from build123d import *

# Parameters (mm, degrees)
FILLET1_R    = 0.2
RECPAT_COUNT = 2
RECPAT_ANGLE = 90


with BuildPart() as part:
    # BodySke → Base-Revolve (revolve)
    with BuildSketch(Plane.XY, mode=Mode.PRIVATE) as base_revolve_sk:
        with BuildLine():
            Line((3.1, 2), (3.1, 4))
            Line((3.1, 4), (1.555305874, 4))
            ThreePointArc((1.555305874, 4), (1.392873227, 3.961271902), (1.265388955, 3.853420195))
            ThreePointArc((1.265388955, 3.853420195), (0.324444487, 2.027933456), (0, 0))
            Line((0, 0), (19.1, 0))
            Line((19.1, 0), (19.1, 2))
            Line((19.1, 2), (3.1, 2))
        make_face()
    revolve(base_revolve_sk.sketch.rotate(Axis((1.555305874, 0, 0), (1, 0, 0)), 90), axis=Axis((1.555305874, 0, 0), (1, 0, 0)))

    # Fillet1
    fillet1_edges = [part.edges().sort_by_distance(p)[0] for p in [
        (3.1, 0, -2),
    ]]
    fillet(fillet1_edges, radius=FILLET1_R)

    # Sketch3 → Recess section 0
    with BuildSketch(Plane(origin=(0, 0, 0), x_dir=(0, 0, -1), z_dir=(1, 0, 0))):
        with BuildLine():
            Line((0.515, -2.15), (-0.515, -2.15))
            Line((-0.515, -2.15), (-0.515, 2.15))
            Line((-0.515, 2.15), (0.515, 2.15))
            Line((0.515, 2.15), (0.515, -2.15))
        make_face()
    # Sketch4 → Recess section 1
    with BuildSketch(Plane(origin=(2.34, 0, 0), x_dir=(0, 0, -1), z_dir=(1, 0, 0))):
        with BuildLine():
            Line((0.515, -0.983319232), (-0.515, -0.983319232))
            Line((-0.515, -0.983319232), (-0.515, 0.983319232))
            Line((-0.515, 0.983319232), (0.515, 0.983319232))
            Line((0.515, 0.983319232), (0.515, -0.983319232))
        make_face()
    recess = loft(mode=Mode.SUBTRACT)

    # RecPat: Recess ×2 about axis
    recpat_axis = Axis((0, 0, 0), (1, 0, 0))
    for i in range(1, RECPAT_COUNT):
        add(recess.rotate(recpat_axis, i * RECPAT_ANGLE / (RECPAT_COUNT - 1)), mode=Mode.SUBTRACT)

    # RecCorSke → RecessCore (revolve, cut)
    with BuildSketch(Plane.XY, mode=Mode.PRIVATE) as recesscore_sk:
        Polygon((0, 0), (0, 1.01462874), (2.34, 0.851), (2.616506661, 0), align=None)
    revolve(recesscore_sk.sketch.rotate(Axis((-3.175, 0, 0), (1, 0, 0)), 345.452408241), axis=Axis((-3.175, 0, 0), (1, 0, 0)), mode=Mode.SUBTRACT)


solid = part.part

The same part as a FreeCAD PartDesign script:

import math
import FreeCAD as App
import Part
import Sketcher

V = App.Vector
Q = App.Units.Quantity


def edges_at(feature, points):
    """Names of the edges that pass closest to the given points."""
    edges = feature.Shape.Edges
    near = lambda p: min(range(len(edges)), key=lambda i: edges[i].distToShape(Part.Vertex(*p))[0])
    return sorted({f"Edge{near(p) + 1}" for p in points})

doc = App.newDocument("Part")
body = doc.addObject("PartDesign::Body", "Body")

# Sketch on XY plane
sketch1 = body.newObject("Sketcher::SketchObject", "Sketch")
sketch1.AttachmentSupport = (doc.getObject("XY_Plane"), [""])
sketch1.MapMode = "FlatFace"
sketch1.addGeometry(Part.LineSegment(V(3.1, 2, 0), V(3.1, 4, 0)), False)
sketch1.addGeometry(Part.LineSegment(V(3.1, 4, 0), V(1.555306, 4, 0)), False)
sketch1.addGeometry(Part.ArcOfCircle(Part.Circle(V(1.555306, 3.64, 0), V(0, 0, 1), 0.36), math.radians(90), math.radians(143.641633)), False)
sketch1.addGeometry(Part.ArcOfCircle(Part.Circle(V(6.5, 0, 0), V(0, 0, 1), 6.5), math.radians(143.641632), math.radians(180)), False)
sketch1.addGeometry(Part.LineSegment(V(0, 0, 0), V(19.1, 0, 0)), False)
sketch1.addGeometry(Part.LineSegment(V(19.1, 0, 0), V(19.1, 2, 0)), False)
sketch1.addGeometry(Part.LineSegment(V(19.1, 2, 0), V(3.1, 2, 0)), False)
sketch1.addConstraint(Sketcher.Constraint("Coincident", 0, 2, 1, 1))
sketch1.addConstraint(Sketcher.Constraint("Tangent", 1, 2, 2, 1))
sketch1.addConstraint(Sketcher.Constraint("Tangent", 2, 2, 3, 1))
sketch1.addConstraint(Sketcher.Constraint("Coincident", 3, 2, 4, 1))
sketch1.addConstraint(Sketcher.Constraint("Coincident", 4, 2, 5, 1))
sketch1.addConstraint(Sketcher.Constraint("Coincident", 5, 2, 6, 1))
sketch1.addConstraint(Sketcher.Constraint("Coincident", 6, 2, 0, 1))
sketch1.addConstraint(Sketcher.Constraint("Vertical", 0))
sketch1.addConstraint(Sketcher.Constraint("Horizontal", 1))
sketch1.addConstraint(Sketcher.Constraint("Horizontal", 4))
sketch1.addConstraint(Sketcher.Constraint("Vertical", 5))
sketch1.addConstraint(Sketcher.Constraint("Horizontal", 6))
sketch1.addConstraint(Sketcher.Constraint("Coincident", 3, 2, -1, 1))
sketch1.addConstraint(Sketcher.Constraint("PointOnObject", 3, 3, -1))
sketch1.addConstraint(Sketcher.Constraint("Equal", 0, 5))
sketch1.addConstraint(Sketcher.Constraint("Radius", 3, 6.5))
sketch1.addConstraint(Sketcher.Constraint("DistanceX", 6, 2, 6, 1, 16.0))
sketch1.addConstraint(Sketcher.Constraint("DistanceY", 0, 1, 0, 2, 2.0))
sketch1.addConstraint(Sketcher.Constraint("Radius", 2, 0.36))
sketch1.addConstraint(Sketcher.Constraint("DistanceX", 4, 1, 4, 2, 19.1))
revolution = body.newObject("PartDesign::Revolution", "Revolution")
revolution.Profile = sketch1
revolution.ReferenceAxis = (sketch1, ["H_Axis"])
revolution.Angle = 360
doc.recompute()

fillet = body.newObject("PartDesign::Fillet", "Fillet")
fillet.Base = (revolution, edges_at(revolution, [(3.1, 0, -2)]))
fillet.Radius = 0.2

# Sketch on YZ plane
sketch2 = body.newObject("Sketcher::SketchObject", "Sketch001")
sketch2.AttachmentSupport = (doc.getObject("YZ_Plane"), [""])
sketch2.MapMode = "FlatFace"
sketch2.addGeometry(Part.LineSegment(V(-2.15, 0.515, 0), V(-2.15, -0.515, 0)), False)
sketch2.addGeometry(Part.LineSegment(V(-2.15, -0.515, 0), V(2.15, -0.515, 0)), False)
sketch2.addGeometry(Part.LineSegment(V(2.15, -0.515, 0), V(2.15, 0.515, 0)), False)
sketch2.addGeometry(Part.LineSegment(V(2.15, 0.515, 0), V(-2.15, 0.515, 0)), False)
sketch2.addConstraint(Sketcher.Constraint("Coincident", 0, 2, 1, 1))
sketch2.addConstraint(Sketcher.Constraint("Coincident", 1, 2, 2, 1))
sketch2.addConstraint(Sketcher.Constraint("Coincident", 2, 2, 3, 1))
sketch2.addConstraint(Sketcher.Constraint("Coincident", 3, 2, 0, 1))
sketch2.addConstraint(Sketcher.Constraint("Vertical", 0))
sketch2.addConstraint(Sketcher.Constraint("Horizontal", 1))
sketch2.addConstraint(Sketcher.Constraint("Vertical", 2))
sketch2.addConstraint(Sketcher.Constraint("Horizontal", 3))
sketch2.addConstraint(Sketcher.Constraint("Symmetric", 0, 2, 2, 2, -1, 1))
sketch2.addConstraint(Sketcher.Constraint("DistanceX", 1, 1, 1, 2, 4.3))
sketch2.addConstraint(Sketcher.Constraint("DistanceY", 0, 2, 0, 1, 1.03))

# Sketch on YZ plane
sketch3 = body.newObject("Sketcher::SketchObject", "Sketch002")
sketch3.AttachmentSupport = (doc.getObject("YZ_Plane"), [""])
sketch3.MapMode = "FlatFace"
sketch3.AttachmentOffset = App.Placement(V(0, 0, 2.34), App.Rotation())
sketch3.addGeometry(Part.LineSegment(V(-0.983319, 0.515, 0), V(-0.983319, -0.515, 0)), False)
sketch3.addGeometry(Part.LineSegment(V(-0.983319, -0.515, 0), V(0.983319, -0.515, 0)), False)
sketch3.addGeometry(Part.LineSegment(V(0.983319, -0.515, 0), V(0.983319, 0.515, 0)), False)
sketch3.addGeometry(Part.LineSegment(V(0.983319, 0.515, 0), V(-0.983319, 0.515, 0)), False)
sketch3.addConstraint(Sketcher.Constraint("Coincident", 0, 2, 1, 1))
sketch3.addConstraint(Sketcher.Constraint("Coincident", 1, 2, 2, 1))
sketch3.addConstraint(Sketcher.Constraint("Coincident", 2, 2, 3, 1))
sketch3.addConstraint(Sketcher.Constraint("Coincident", 3, 2, 0, 1))
sketch3.addConstraint(Sketcher.Constraint("Vertical", 0))
sketch3.addConstraint(Sketcher.Constraint("Horizontal", 1))
sketch3.addConstraint(Sketcher.Constraint("Vertical", 2))
sketch3.addConstraint(Sketcher.Constraint("Horizontal", 3))
sketch3.addConstraint(Sketcher.Constraint("Symmetric", 0, 2, 2, 2, -1, 1))
sketch3.addConstraint(Sketcher.Constraint("DistanceY", 0, 2, 0, 1, 1.03))
sketch3.addConstraint(Sketcher.Constraint("DistanceX", 1, 1, 1, 2, 1.966638))

subtractiveloft = body.newObject("PartDesign::SubtractiveLoft", "SubtractiveLoft")
subtractiveloft.Profile = sketch2
subtractiveloft.Sections = [sketch3]
doc.recompute()

polarpattern = body.newObject("PartDesign::PolarPattern", "PolarPattern")
polarpattern.Originals = [subtractiveloft]
polarpattern.Axis = (doc.getObject("X_Axis"), [""])
polarpattern.Angle = 90
polarpattern.Occurrences = 2
body.Tip = polarpattern

# Sketch on XY plane
sketch4 = body.newObject("Sketcher::SketchObject", "Sketch003")
sketch4.AttachmentSupport = (doc.getObject("XY_Plane"), [""])
sketch4.MapMode = "FlatFace"
sketch4.addGeometry(Part.LineSegment(V(0, 1.014629, 0), V(0, 0, 0)), False)
sketch4.addGeometry(Part.LineSegment(V(0, 0, 0), V(2.616507, 0, 0)), False)
sketch4.addGeometry(Part.LineSegment(V(2.616507, 0, 0), V(2.34, 0.851, 0)), False)
sketch4.addGeometry(Part.LineSegment(V(2.34, 0.851, 0), V(0, 1.014629, 0)), False)
sketch4.addConstraint(Sketcher.Constraint("Coincident", 0, 2, 1, 1))
sketch4.addConstraint(Sketcher.Constraint("Coincident", 1, 2, 2, 1))
sketch4.addConstraint(Sketcher.Constraint("Coincident", 2, 2, 3, 1))
sketch4.addConstraint(Sketcher.Constraint("Coincident", 3, 2, 0, 1))
sketch4.addConstraint(Sketcher.Constraint("Vertical", 0))
sketch4.addConstraint(Sketcher.Constraint("Horizontal", 1))
sketch4.addConstraint(Sketcher.Constraint("Coincident", 0, 2, -1, 1))
sketch4.addConstraint(Sketcher.Constraint("Angle", 2, Q("108 deg")))
sketch4.addConstraint(Sketcher.Constraint("Angle", 3, Q("176 deg")))
sketch4.addConstraint(Sketcher.Constraint("DistanceX", -1, 1, 2, 2, 2.34))
sketch4.addConstraint(Sketcher.Constraint("DistanceY", -1, 1, 2, 2, 0.851))
groove = body.newObject("PartDesign::Groove", "Groove")
groove.Profile = sketch4
groove.ReferenceAxis = (sketch4, ["H_Axis"])
groove.Angle = 360

doc.recompute()
